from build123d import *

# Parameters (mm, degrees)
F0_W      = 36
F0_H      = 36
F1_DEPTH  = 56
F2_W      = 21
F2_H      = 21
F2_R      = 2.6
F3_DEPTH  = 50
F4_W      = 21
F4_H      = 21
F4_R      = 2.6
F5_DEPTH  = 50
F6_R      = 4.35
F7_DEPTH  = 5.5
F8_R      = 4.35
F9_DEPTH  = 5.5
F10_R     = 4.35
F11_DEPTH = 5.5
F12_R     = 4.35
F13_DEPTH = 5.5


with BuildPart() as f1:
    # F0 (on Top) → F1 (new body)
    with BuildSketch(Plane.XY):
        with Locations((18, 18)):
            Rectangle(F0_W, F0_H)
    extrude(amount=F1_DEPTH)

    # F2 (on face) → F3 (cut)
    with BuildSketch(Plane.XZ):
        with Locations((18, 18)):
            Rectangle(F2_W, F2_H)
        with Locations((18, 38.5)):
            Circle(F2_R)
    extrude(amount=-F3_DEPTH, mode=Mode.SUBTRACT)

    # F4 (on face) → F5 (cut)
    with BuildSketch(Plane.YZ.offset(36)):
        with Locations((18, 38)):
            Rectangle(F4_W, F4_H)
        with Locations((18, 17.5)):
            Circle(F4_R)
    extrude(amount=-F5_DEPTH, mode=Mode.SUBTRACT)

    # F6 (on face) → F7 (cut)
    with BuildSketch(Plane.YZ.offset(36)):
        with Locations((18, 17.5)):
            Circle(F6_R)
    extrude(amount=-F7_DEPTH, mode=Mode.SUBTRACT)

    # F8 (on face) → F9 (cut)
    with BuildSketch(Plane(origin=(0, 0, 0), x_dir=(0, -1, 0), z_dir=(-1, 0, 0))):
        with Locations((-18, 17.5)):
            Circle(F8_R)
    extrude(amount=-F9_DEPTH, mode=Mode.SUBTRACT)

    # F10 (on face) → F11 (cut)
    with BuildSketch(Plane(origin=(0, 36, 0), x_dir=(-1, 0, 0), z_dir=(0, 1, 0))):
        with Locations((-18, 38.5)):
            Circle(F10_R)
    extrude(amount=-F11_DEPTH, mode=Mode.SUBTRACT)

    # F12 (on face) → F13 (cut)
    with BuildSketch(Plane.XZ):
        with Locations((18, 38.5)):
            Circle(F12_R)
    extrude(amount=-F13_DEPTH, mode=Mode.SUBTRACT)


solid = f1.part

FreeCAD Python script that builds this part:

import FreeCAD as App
import Part
import Sketcher
Q = App.Units.Quantity

doc = App.newDocument("Part")
body = doc.addObject("PartDesign::Body", "Body")

sketch1 = body.newObject("Sketcher::SketchObject", "Sketch")
sketch1.AttachmentSupport = (doc.getObject("XY_Plane"), [""])
sketch1.MapMode = "FlatFace"
sketch1.addGeometry([
    Part.LineSegment(App.Vector(0, 36, 0), App.Vector(0, 0, 0)),
    Part.LineSegment(App.Vector(0, 0, 0), App.Vector(36, 0, 0)),
    Part.LineSegment(App.Vector(36, 0, 0), App.Vector(36, 36, 0)),
    Part.LineSegment(App.Vector(36, 36, 0), App.Vector(0, 36, 0)),
], False)
sketch1.addConstraint([
    Sketcher.Constraint("Coincident", 0, 2, 1, 1),
    Sketcher.Constraint("Coincident", 1, 2, 2, 1),
    Sketcher.Constraint("Coincident", 2, 2, 3, 1),
    Sketcher.Constraint("Coincident", 3, 2, 0, 1),
    Sketcher.Constraint("Vertical", 0),
    Sketcher.Constraint("Horizontal", 1),
    Sketcher.Constraint("Vertical", 2),
    Sketcher.Constraint("Horizontal", 3),
    Sketcher.Constraint("Coincident", 0, 2, -1, 1),
    Sketcher.Constraint("Equal", 3, 0),
    Sketcher.Constraint("DistanceX", 1, 1, 1, 2, Q("36 mm")),
])
pad1 = body.newObject("PartDesign::Pad", "Pad")
pad1.Profile = sketch1
pad1.Length = 56

sketch2 = body.newObject("Sketcher::SketchObject", "Sketch001")
sketch2.AttachmentSupport = (doc.getObject("XZ_Plane"), [""])
sketch2.MapMode = "FlatFace"
sketch2.addGeometry([
    Part.LineSegment(App.Vector(7.5, 28.5, 0), App.Vector(7.5, 7.5, 0)),
    Part.LineSegment(App.Vector(7.5, 7.5, 0), App.Vector(28.5, 7.5, 0)),
    Part.LineSegment(App.Vector(28.5, 7.5, 0), App.Vector(28.5, 28.5, 0)),
    Part.LineSegment(App.Vector(28.5, 28.5, 0), App.Vector(7.5, 28.5, 0)),
    Part.Circle(App.Vector(18, 38.5, 0), App.Vector(0, 0, 1), 2.6),
], False)
sketch2.addConstraint([
    Sketcher.Constraint("Coincident", 0, 2, 1, 1),
    Sketcher.Constraint("Coincident", 1, 2, 2, 1),
    Sketcher.Constraint("Coincident", 2, 2, 3, 1),
    Sketcher.Constraint("Coincident", 3, 2, 0, 1),
    Sketcher.Constraint("Vertical", 0),
    Sketcher.Constraint("Horizontal", 1),
    Sketcher.Constraint("Vertical", 2),
    Sketcher.Constraint("Horizontal", 3),
    Sketcher.Constraint("Equal", 3, 0),
    Sketcher.Constraint("Diameter", 4, Q("5.2 mm")),
    Sketcher.Constraint("DistanceX", 1, 1, 1, 2, Q("21 mm")),
    Sketcher.Constraint("DistanceX", -1, 1, 4, 3, Q("18 mm")),
    Sketcher.Constraint("DistanceY", 0, 2, 4, 3, Q("31 mm")),
    Sketcher.Constraint("DistanceY", -1, 1, 4, 3, Q("38.5 mm")),
    Sketcher.Constraint("DistanceX", -1, 1, 0, 2, Q("7.5 mm")),
])
pocket1 = body.newObject("PartDesign::Pocket", "Pocket")
pocket1.Profile = sketch2
pocket1.Length = 50

sketch3 = body.newObject("Sketcher::SketchObject", "Sketch002")
sketch3.AttachmentSupport = (doc.getObject("YZ_Plane"), [""])
sketch3.MapMode = "FlatFace"
sketch3.AttachmentOffset = App.Placement(App.Vector(0, 0, 36), App.Rotation())
sketch3.addGeometry([
    Part.LineSegment(App.Vector(7.5, 48.5, 0), App.Vector(7.5, 27.5, 0)),
    Part.LineSegment(App.Vector(7.5, 27.5, 0), App.Vector(28.5, 27.5, 0)),
    Part.LineSegment(App.Vector(28.5, 27.5, 0), App.Vector(28.5, 48.5, 0)),
    Part.LineSegment(App.Vector(28.5, 48.5, 0), App.Vector(7.5, 48.5, 0)),
    Part.Circle(App.Vector(18, 17.5, 0), App.Vector(0, 0, 1), 2.6),
], False)
sketch3.addConstraint([
    Sketcher.Constraint("Coincident", 0, 2, 1, 1),
    Sketcher.Constraint("Coincident", 1, 2, 2, 1),
    Sketcher.Constraint("Coincident", 2, 2, 3, 1),
    Sketcher.Constraint("Coincident", 3, 2, 0, 1),
    Sketcher.Constraint("Vertical", 0),
    Sketcher.Constraint("Horizontal", 1),
    Sketcher.Constraint("Vertical", 2),
    Sketcher.Constraint("Horizontal", 3),
    Sketcher.Constraint("Equal", 3, 0),
    Sketcher.Constraint("Diameter", 4, Q("5.2 mm")),
    Sketcher.Constraint("DistanceX", 1, 1, 1, 2, Q("21 mm")),
    Sketcher.Constraint("DistanceX", -1, 1, 4, 3, Q("18 mm")),
    Sketcher.Constraint("DistanceY", 4, 3, 0, 2, Q("10 mm")),
    Sketcher.Constraint("DistanceY", -1, 1, 4, 3, Q("17.5 mm")),
    Sketcher.Constraint("DistanceX", -1, 1, 0, 2, Q("7.5 mm")),
])
pocket2 = body.newObject("PartDesign::Pocket", "Pocket001")
pocket2.Profile = sketch3
pocket2.Length = 50

sketch4 = body.newObject("Sketcher::SketchObject", "Sketch003")
sketch4.AttachmentSupport = (doc.getObject("YZ_Plane"), [""])
sketch4.MapMode = "FlatFace"
sketch4.AttachmentOffset = App.Placement(App.Vector(0, 0, 36), App.Rotation())
sketch4.addGeometry(Part.Circle(App.Vector(18, 17.5, 0), App.Vector(0, 0, 1), 4.3), False)
sketch4.addConstraint([
    Sketcher.Constraint("Diameter", 0, Q("8.7 mm")),
    Sketcher.Constraint("DistanceX", -1, 1, 0, 3, Q("18 mm")),
    Sketcher.Constraint("DistanceY", -1, 1, 0, 3, Q("17.5 mm")),
])
pocket3 = body.newObject("PartDesign::Pocket", "Pocket002")
pocket3.Profile = sketch4
pocket3.Length = 5.5

sketch5 = body.newObject("Sketcher::SketchObject", "Sketch004")
sketch5.AttachmentSupport = (doc.getObject("YZ_Plane"), [""])
sketch5.MapMode = "FlatFace"
sketch5.addGeometry(Part.Circle(App.Vector(18, 17.5, 0), App.Vector(0, 0, 1), 4.3), False)
sketch5.addConstraint([
    Sketcher.Constraint("Diameter", 0, Q("8.7 mm")),
    Sketcher.Constraint("DistanceX", -1, 1, 0, 3, Q("18 mm")),
    Sketcher.Constraint("DistanceY", -1, 1, 0, 3, Q("17.5 mm")),
])
pocket4 = body.newObject("PartDesign::Pocket", "Pocket003")
pocket4.Profile = sketch5
pocket4.Length = 5.5
pocket4.Reversed = True

sketch6 = body.newObject("Sketcher::SketchObject", "Sketch005")
sketch6.AttachmentSupport = (doc.getObject("XZ_Plane"), [""])
sketch6.MapMode = "FlatFace"
sketch6.AttachmentOffset = App.Placement(App.Vector(0, 0, -36), App.Rotation())
sketch6.addGeometry(Part.Circle(App.Vector(18, 38.5, 0), App.Vector(0, 0, 1), 4.3), False)
sketch6.addConstraint([
    Sketcher.Constraint("Diameter", 0, Q("8.7 mm")),
    Sketcher.Constraint("DistanceX", -1, 1, 0, 3, Q("18 mm")),
    Sketcher.Constraint("DistanceY", -1, 1, 0, 3, Q("38.5 mm")),
])
pocket5 = body.newObject("PartDesign::Pocket", "Pocket004")
pocket5.Profile = sketch6
pocket5.Length = 5.5
pocket5.Reversed = True

sketch7 = body.newObject("Sketcher::SketchObject", "Sketch006")
sketch7.AttachmentSupport = (doc.getObject("XZ_Plane"), [""])
sketch7.MapMode = "FlatFace"
sketch7.addGeometry(Part.Circle(App.Vector(18, 38.5, 0), App.Vector(0, 0, 1), 4.3), False)
sketch7.addConstraint([
    Sketcher.Constraint("Diameter", 0, Q("8.7 mm")),
    Sketcher.Constraint("DistanceX", -1, 1, 0, 3, Q("18 mm")),
    Sketcher.Constraint("DistanceY", -1, 1, 0, 3, Q("38.5 mm")),
])
pocket6 = body.newObject("PartDesign::Pocket", "Pocket005")
pocket6.Profile = sketch7
pocket6.Length = 5.5

doc.recompute()
